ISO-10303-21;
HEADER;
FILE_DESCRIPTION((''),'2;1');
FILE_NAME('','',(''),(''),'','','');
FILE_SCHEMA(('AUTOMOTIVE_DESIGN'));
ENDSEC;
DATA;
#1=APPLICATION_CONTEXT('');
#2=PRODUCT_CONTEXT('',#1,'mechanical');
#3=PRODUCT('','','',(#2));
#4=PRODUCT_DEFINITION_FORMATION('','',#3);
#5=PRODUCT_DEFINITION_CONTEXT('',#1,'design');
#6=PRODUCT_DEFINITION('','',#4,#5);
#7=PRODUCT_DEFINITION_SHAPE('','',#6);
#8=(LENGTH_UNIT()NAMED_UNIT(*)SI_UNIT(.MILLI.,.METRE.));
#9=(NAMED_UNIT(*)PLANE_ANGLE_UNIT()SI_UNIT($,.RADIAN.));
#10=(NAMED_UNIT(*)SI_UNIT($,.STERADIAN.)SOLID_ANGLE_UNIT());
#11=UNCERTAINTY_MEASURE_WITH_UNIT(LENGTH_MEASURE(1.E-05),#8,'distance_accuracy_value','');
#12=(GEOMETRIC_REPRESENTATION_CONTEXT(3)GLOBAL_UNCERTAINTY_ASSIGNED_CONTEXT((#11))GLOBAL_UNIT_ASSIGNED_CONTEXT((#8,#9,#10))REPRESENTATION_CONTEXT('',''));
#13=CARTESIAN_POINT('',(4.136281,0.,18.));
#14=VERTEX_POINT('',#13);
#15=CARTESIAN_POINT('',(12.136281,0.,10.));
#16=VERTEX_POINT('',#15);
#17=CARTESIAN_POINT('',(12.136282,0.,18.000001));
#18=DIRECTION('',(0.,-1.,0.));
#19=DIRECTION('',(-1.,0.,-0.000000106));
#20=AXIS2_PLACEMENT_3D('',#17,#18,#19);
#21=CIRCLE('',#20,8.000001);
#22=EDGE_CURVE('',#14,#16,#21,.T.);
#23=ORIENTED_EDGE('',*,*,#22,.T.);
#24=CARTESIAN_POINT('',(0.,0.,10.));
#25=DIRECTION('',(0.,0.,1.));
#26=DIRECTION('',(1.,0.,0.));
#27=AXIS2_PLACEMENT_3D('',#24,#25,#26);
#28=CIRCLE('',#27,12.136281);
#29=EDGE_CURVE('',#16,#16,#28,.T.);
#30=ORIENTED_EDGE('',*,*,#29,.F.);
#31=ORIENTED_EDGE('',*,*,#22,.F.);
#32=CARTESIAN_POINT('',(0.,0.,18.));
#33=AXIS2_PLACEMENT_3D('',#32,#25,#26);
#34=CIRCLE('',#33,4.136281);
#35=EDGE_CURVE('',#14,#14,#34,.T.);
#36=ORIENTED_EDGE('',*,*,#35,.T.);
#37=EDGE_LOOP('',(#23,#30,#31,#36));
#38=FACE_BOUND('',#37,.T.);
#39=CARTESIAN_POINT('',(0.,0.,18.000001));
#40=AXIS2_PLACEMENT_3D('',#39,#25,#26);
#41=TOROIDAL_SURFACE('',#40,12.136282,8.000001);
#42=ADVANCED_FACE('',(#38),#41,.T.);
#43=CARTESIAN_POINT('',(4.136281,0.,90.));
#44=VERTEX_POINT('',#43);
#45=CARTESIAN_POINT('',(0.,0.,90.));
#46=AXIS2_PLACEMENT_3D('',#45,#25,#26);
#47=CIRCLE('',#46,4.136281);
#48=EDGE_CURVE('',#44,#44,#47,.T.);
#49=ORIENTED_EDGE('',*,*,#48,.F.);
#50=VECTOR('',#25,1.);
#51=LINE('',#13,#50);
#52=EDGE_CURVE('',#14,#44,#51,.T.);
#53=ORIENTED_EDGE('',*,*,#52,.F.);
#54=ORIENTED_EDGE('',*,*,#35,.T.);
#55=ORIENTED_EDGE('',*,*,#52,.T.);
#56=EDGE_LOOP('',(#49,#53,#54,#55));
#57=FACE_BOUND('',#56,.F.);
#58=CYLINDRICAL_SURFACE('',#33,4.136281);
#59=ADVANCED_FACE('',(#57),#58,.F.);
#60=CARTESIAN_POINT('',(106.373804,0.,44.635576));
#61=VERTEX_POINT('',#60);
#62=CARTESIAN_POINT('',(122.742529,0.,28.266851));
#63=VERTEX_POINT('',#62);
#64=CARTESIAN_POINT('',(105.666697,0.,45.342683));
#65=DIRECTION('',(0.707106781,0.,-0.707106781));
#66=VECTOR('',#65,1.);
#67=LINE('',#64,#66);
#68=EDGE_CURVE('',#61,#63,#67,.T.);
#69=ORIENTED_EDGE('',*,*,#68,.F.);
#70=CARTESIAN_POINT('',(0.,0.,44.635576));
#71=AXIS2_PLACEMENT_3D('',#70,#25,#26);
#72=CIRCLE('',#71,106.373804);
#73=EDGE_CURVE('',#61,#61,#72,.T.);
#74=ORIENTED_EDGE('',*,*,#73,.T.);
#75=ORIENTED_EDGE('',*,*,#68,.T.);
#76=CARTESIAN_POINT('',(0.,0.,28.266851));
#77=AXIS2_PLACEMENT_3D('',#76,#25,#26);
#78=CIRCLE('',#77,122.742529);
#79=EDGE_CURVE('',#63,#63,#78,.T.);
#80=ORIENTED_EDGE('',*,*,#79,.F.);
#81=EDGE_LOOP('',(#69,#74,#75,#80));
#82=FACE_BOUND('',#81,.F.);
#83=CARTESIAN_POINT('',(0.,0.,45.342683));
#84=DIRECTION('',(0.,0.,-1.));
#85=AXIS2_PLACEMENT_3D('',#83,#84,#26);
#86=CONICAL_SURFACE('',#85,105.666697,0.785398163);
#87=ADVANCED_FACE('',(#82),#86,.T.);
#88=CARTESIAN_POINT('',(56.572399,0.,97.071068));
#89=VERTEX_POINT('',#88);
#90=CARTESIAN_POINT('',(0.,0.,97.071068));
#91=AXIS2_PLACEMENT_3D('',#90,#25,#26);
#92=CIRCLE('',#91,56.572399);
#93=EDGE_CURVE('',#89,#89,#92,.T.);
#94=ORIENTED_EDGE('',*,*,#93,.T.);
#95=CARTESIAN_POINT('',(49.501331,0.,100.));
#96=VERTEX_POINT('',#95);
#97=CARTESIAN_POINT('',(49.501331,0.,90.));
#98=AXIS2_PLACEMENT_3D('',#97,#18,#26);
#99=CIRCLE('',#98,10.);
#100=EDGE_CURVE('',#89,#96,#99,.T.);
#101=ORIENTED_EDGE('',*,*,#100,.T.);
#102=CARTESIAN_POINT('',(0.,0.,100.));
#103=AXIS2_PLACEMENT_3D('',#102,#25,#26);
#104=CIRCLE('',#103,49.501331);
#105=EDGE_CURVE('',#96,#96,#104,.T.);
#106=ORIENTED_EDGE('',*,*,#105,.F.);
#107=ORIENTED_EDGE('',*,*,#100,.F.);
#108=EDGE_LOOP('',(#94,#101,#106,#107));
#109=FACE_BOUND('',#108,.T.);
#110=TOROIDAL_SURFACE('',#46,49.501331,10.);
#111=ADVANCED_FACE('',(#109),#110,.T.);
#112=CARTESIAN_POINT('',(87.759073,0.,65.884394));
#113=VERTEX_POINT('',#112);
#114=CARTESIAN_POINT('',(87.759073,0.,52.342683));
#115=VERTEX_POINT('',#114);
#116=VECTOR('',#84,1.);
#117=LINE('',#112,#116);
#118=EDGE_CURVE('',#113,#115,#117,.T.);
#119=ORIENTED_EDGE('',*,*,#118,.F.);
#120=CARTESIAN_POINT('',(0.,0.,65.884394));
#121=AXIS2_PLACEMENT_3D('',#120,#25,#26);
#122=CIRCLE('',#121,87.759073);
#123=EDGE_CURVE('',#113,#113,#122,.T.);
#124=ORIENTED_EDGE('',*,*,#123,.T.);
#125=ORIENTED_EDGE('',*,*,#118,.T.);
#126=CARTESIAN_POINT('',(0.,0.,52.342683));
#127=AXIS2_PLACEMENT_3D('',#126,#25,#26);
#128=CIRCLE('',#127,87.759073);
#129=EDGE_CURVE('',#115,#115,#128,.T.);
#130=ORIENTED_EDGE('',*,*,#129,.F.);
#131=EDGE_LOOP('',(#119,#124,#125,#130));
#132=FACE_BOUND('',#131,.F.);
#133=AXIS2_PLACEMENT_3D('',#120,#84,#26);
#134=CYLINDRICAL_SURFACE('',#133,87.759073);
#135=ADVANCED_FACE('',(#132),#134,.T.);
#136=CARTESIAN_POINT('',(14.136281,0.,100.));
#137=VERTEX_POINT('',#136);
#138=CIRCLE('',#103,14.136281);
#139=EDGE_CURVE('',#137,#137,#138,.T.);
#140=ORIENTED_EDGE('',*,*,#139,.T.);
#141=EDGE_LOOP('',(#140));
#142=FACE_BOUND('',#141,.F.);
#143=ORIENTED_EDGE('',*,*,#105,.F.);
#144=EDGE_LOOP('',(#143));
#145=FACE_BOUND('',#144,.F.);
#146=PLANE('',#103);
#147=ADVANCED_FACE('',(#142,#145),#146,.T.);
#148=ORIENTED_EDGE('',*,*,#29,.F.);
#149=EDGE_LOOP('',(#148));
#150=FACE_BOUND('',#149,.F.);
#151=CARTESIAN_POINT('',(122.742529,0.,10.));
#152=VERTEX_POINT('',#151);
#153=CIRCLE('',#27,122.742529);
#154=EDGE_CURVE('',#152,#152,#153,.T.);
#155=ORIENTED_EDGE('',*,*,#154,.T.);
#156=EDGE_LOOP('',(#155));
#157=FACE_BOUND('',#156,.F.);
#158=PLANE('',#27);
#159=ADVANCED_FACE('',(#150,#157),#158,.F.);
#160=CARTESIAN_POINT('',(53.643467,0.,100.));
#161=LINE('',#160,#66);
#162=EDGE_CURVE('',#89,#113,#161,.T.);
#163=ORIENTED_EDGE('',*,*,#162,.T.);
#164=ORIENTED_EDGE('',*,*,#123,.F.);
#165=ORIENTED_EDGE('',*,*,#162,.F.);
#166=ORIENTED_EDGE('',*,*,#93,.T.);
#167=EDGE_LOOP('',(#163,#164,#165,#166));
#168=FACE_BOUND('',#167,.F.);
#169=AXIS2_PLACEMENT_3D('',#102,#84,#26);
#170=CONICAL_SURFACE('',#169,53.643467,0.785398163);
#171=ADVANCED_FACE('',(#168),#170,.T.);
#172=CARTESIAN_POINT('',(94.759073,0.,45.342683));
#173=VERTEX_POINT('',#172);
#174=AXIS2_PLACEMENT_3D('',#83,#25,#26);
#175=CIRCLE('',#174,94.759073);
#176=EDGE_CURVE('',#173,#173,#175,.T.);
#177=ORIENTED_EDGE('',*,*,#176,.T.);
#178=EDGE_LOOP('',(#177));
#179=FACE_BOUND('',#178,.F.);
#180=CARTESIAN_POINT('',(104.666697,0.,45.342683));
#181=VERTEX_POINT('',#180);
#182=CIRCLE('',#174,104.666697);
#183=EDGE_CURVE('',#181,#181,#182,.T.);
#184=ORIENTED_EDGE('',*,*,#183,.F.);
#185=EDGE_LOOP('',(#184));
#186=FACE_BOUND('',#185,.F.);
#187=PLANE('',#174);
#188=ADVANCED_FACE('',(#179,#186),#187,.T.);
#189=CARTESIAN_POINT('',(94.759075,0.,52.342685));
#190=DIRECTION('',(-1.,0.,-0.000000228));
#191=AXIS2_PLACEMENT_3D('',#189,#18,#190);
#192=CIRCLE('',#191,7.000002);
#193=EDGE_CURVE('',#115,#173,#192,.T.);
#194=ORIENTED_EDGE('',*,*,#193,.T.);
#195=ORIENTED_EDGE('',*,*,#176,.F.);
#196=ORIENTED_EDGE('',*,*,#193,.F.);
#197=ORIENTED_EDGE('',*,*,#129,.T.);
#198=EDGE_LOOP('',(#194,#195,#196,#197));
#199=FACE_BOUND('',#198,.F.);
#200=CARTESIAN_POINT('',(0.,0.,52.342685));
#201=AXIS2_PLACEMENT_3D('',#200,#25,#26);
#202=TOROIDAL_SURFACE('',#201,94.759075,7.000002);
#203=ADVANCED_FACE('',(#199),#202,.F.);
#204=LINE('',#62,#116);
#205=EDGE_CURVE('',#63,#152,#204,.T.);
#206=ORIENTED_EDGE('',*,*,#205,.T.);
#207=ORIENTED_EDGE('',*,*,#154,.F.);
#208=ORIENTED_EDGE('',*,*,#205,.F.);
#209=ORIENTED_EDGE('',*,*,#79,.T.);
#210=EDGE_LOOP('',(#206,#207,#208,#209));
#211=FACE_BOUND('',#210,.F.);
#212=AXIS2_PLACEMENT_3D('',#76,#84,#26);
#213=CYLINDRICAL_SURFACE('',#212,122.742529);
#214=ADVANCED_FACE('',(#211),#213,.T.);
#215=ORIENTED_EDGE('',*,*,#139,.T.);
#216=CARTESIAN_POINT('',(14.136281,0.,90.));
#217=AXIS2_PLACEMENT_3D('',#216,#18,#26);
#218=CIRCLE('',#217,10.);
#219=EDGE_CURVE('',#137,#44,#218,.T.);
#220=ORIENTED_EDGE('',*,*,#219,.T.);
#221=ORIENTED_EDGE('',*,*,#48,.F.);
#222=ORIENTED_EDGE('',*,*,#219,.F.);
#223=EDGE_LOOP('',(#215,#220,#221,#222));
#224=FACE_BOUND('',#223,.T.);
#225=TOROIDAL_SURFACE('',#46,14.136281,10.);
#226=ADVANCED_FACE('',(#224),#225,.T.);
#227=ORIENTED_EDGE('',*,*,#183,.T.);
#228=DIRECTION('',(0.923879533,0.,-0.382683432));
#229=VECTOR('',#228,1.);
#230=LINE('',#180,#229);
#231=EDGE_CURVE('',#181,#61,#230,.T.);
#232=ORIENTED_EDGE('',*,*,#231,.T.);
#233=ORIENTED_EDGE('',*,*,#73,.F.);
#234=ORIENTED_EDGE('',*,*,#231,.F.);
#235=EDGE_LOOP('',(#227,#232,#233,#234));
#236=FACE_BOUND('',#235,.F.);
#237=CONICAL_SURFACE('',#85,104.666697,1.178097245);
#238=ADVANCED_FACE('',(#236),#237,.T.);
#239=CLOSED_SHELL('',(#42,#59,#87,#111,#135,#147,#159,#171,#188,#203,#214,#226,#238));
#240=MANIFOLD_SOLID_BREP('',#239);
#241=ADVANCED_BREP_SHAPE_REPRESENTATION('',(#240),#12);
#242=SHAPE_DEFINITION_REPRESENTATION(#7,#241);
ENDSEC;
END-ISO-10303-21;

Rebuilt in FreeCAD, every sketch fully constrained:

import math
import FreeCAD as App
import Part
import Sketcher
Q = App.Units.Quantity


def edges_at(feature, points):
    """Names of the edges that pass closest to the given points."""
    edges = feature.Shape.Edges
    near = lambda p: min(range(len(edges)), key=lambda i: edges[i].distToShape(Part.Vertex(*p))[0])
    return sorted({f"Edge{near(p) + 1}" for p in points})

doc = App.newDocument("Part")
body = doc.addObject("PartDesign::Body", "Body")

sketch1 = doc.addObject("Sketcher::SketchObject", "Sketch")
body.addObject(sketch1)
sketch1.AttachmentSupport = (doc.XZ_Plane, [""])
sketch1.MapMode = "FlatFace"
sketch1.addGeometry(Part.LineSegment(App.Vector(54, 100, 0), App.Vector(4, 100, 0)), False)
sketch1.addGeometry(Part.LineSegment(App.Vector(4, 100, 0), App.Vector(4, 18, 0)), False)
sketch1.addGeometry(Part.ArcOfCircle(Part.Circle(App.Vector(12, 18, 0), App.Vector(0, 0, 1), 8), math.radians(-180), math.radians(-90)), False)
sketch1.addGeometry(Part.LineSegment(App.Vector(12, 10, 0), App.Vector(123, 10, 0)), False)
sketch1.addGeometry(Part.LineSegment(App.Vector(123, 10, 0), App.Vector(123, 28, 0)), False)
sketch1.addGeometry(Part.LineSegment(App.Vector(123, 28, 0), App.Vector(106, 45, 0)), False)
sketch1.addGeometry(Part.LineSegment(App.Vector(106, 45, 0), App.Vector(95, 45, 0)), False)
sketch1.addGeometry(Part.ArcOfCircle(Part.Circle(App.Vector(95, 52, 0), App.Vector(0, 0, 1), 7), math.radians(-180), math.radians(-90)), False)
sketch1.addGeometry(Part.LineSegment(App.Vector(88, 52, 0), App.Vector(88, 66, 0)), False)
sketch1.addGeometry(Part.LineSegment(App.Vector(88, 66, 0), App.Vector(54, 100, 0)), False)
sketch1.addConstraint(Sketcher.Constraint("Coincident", 0, 2, 1, 1))
sketch1.addConstraint(Sketcher.Constraint("Tangent", 1, 2, 2, 1))
sketch1.addConstraint(Sketcher.Constraint("Tangent", 2, 2, 3, 1))
sketch1.addConstraint(Sketcher.Constraint("Coincident", 3, 2, 4, 1))
sketch1.addConstraint(Sketcher.Constraint("Coincident", 4, 2, 5, 1))
sketch1.addConstraint(Sketcher.Constraint("Coincident", 5, 2, 6, 1))
sketch1.addConstraint(Sketcher.Constraint("Tangent", 6, 2, 7, 2))
sketch1.addConstraint(Sketcher.Constraint("Tangent", 7, 1, 8, 1))
sketch1.addConstraint(Sketcher.Constraint("Coincident", 8, 2, 9, 1))
sketch1.addConstraint(Sketcher.Constraint("Coincident", 9, 2, 0, 1))
sketch1.addConstraint(Sketcher.Constraint("Horizontal", 0))
sketch1.addConstraint(Sketcher.Constraint("Vertical", 1))
sketch1.addConstraint(Sketcher.Constraint("Horizontal", 3))
sketch1.addConstraint(Sketcher.Constraint("Vertical", 4))
sketch1.addConstraint(Sketcher.Constraint("Horizontal", 6))
sketch1.addConstraint(Sketcher.Constraint("Vertical", 8))
sketch1.addConstraint(Sketcher.Constraint("Parallel", 5, 9))
sketch1.addConstraint(Sketcher.Constraint("Radius", 2, Q("8.000001 mm")))
sketch1.addConstraint(Sketcher.Constraint("Radius", 7, Q("7.000002 mm")))
sketch1.addConstraint(Sketcher.Constraint("DistanceY", 1, 2, 1, 1, Q("82 mm")))
sketch1.addConstraint(Sketcher.Constraint("Angle", 5, Q("135 deg")))
sketch1.addConstraint(Sketcher.Constraint("DistanceY", -1, 1, 2, 3, Q("18.000001 mm")))
sketch1.addConstraint(Sketcher.Constraint("DistanceX", 3, 1, 3, 2, Q("110.606248 mm")))
sketch1.addConstraint(Sketcher.Constraint("DistanceY", 4, 1, 4, 2, Q("18.266851 mm")))
sketch1.addConstraint(Sketcher.Constraint("DistanceY", 8, 1, 8, 2, Q("13.541711 mm")))
sketch1.addConstraint(Sketcher.Constraint("DistanceX", 0, 2, 0, 1, Q("49.507186 mm")))
sketch1.addConstraint(Sketcher.Constraint("DistanceX", -1, 1, 2, 3, Q("12.136282 mm")))
sketch1.addConstraint(Sketcher.Constraint("DistanceX", 2, 3, 6, 2, Q("82.622791 mm")))
revolution = doc.addObject("PartDesign::Revolution", "Revolution")
body.addObject(revolution)
revolution.Profile = sketch1
revolution.ReferenceAxis = (sketch1, ["V_Axis"])
revolution.Angle = 360
doc.recompute()

chamfer = doc.addObject("PartDesign::Chamfer", "Chamfer")
body.addObject(chamfer)
chamfer.Base = (revolution, edges_at(revolution, [(-94.759, 0, 45.343), (-105.667, 0, 45.343)]))
chamfer.Size = 1
doc.recompute()

fillet = doc.addObject("PartDesign::Fillet", "Fillet")
body.addObject(fillet)
fillet.Base = (chamfer, edges_at(chamfer, [(-4.136, 0, 100), (-53.643, 0, 100)]))
fillet.Radius = 10

doc.recompute()
